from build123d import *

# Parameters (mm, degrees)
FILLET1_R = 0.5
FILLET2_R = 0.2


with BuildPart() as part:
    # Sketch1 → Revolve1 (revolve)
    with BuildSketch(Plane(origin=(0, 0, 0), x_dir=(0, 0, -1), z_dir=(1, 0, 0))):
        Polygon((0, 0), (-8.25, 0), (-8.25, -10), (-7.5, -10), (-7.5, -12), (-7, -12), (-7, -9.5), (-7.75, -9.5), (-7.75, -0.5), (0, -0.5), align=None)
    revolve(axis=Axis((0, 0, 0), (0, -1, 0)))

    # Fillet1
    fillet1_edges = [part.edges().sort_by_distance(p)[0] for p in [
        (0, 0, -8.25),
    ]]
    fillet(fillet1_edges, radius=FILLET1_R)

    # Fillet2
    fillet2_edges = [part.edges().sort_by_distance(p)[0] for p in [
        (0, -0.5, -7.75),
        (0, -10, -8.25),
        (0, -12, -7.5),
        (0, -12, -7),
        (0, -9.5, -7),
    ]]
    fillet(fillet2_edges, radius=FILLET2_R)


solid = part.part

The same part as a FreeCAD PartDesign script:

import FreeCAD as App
import Part
import Sketcher
from FreeCAD import Vector


def edges_at(feature, points):
    """Names of the edges that pass closest to the given points."""
    edges = feature.Shape.Edges
    near = lambda p: min(range(len(edges)), key=lambda i: edges[i].distToShape(Part.Vertex(*p))[0])
    return sorted({f"Edge{near(p) + 1}" for p in points})

doc = App.newDocument("Part")
body = doc.addObject("PartDesign::Body", "Body")

sketch1 = body.newObject("Sketcher::SketchObject", "Sketch")
sketch1.AttachmentSupport = (doc.getObject("YZ_Plane"), [""])
sketch1.MapMode = "FlatFace"
sketch1.addGeometry([
    Part.LineSegment(Vector(0, 0, 0), Vector(0, 8.25, 0)),
    Part.LineSegment(Vector(0, 8.25, 0), Vector(-10, 8.25, 0)),
    Part.LineSegment(Vector(-10, 8.25, 0), Vector(-10, 7.5, 0)),
    Part.LineSegment(Vector(-10, 7.5, 0), Vector(-12, 7.5, 0)),
    Part.LineSegment(Vector(-12, 7.5, 0), Vector(-12, 7, 0)),
    Part.LineSegment(Vector(-12, 7, 0), Vector(-9.5, 7, 0)),
    Part.LineSegment(Vector(-9.5, 7, 0), Vector(-9.5, 7.75, 0)),
    Part.LineSegment(Vector(-9.5, 7.75, 0), Vector(-0.5, 7.75, 0)),
    Part.LineSegment(Vector(-0.5, 7.75, 0), Vector(-0.5, 0, 0)),
    Part.LineSegment(Vector(-0.5, 0, 0), Vector(0, 0, 0)),
], False)
sketch1.addConstraint([
    Sketcher.Constraint("Coincident", 0, 2, 1, 1),
    Sketcher.Constraint("Coincident", 1, 2, 2, 1),
    Sketcher.Constraint("Coincident", 2, 2, 3, 1),
    Sketcher.Constraint("Coincident", 3, 2, 4, 1),
    Sketcher.Constraint("Coincident", 4, 2, 5, 1),
    Sketcher.Constraint("Coincident", 5, 2, 6, 1),
    Sketcher.Constraint("Coincident", 6, 2, 7, 1),
    Sketcher.Constraint("Coincident", 7, 2, 8, 1),
    Sketcher.Constraint("Coincident", 8, 2, 9, 1),
    Sketcher.Constraint("Coincident", 9, 2, 0, 1),
    Sketcher.Constraint("Vertical", 0),
    Sketcher.Constraint("Horizontal", 1),
    Sketcher.Constraint("Vertical", 2),
    Sketcher.Constraint("Horizontal", 3),
    Sketcher.Constraint("Vertical", 4),
    Sketcher.Constraint("Horizontal", 5),
    Sketcher.Constraint("Vertical", 6),
    Sketcher.Constraint("Horizontal", 7),
    Sketcher.Constraint("Vertical", 8),
    Sketcher.Constraint("Horizontal", 9),
    Sketcher.Constraint("Coincident", 9, 2, -1, 1),
    Sketcher.Constraint("Equal", 9, 4),
    Sketcher.Constraint("Equal", 2, 6),
    Sketcher.Constraint("DistanceX", 1, 2, 1, 1, 10.0),
    Sketcher.Constraint("DistanceX", 3, 2, 3, 1, 2.0),
    Sketcher.Constraint("DistanceX", 7, 1, 7, 2, 9.0),
    Sketcher.Constraint("DistanceX", 5, 1, 5, 2, 2.5),
    Sketcher.Constraint("DistanceY", -1, 1, 4, 2, 7.0),
    Sketcher.Constraint("DistanceY", 0, 1, 0, 2, 8.25),
])
revolution = body.newObject("PartDesign::Revolution", "Revolution")
revolution.Profile = sketch1
revolution.ReferenceAxis = (sketch1, ["H_Axis"])
revolution.Angle = 360
doc.recompute()

fillet = body.newObject("PartDesign::Fillet", "Fillet")
fillet.Base = (revolution, edges_at(revolution, [(0, 0, -8.25)]))
fillet.Radius = 0.5
doc.recompute()

fillet2 = body.newObject("PartDesign::Fillet", "Fillet001")
fillet2.Base = (fillet, edges_at(fillet, [
    (0, -0.5, -7.75),
    (0, -10, -8.25),
    (0, -12, -7.5),
    (0, -12, -7),
    (0, -9.5, -7),
]))
fillet2.Radius = 0.2

doc.recompute()
